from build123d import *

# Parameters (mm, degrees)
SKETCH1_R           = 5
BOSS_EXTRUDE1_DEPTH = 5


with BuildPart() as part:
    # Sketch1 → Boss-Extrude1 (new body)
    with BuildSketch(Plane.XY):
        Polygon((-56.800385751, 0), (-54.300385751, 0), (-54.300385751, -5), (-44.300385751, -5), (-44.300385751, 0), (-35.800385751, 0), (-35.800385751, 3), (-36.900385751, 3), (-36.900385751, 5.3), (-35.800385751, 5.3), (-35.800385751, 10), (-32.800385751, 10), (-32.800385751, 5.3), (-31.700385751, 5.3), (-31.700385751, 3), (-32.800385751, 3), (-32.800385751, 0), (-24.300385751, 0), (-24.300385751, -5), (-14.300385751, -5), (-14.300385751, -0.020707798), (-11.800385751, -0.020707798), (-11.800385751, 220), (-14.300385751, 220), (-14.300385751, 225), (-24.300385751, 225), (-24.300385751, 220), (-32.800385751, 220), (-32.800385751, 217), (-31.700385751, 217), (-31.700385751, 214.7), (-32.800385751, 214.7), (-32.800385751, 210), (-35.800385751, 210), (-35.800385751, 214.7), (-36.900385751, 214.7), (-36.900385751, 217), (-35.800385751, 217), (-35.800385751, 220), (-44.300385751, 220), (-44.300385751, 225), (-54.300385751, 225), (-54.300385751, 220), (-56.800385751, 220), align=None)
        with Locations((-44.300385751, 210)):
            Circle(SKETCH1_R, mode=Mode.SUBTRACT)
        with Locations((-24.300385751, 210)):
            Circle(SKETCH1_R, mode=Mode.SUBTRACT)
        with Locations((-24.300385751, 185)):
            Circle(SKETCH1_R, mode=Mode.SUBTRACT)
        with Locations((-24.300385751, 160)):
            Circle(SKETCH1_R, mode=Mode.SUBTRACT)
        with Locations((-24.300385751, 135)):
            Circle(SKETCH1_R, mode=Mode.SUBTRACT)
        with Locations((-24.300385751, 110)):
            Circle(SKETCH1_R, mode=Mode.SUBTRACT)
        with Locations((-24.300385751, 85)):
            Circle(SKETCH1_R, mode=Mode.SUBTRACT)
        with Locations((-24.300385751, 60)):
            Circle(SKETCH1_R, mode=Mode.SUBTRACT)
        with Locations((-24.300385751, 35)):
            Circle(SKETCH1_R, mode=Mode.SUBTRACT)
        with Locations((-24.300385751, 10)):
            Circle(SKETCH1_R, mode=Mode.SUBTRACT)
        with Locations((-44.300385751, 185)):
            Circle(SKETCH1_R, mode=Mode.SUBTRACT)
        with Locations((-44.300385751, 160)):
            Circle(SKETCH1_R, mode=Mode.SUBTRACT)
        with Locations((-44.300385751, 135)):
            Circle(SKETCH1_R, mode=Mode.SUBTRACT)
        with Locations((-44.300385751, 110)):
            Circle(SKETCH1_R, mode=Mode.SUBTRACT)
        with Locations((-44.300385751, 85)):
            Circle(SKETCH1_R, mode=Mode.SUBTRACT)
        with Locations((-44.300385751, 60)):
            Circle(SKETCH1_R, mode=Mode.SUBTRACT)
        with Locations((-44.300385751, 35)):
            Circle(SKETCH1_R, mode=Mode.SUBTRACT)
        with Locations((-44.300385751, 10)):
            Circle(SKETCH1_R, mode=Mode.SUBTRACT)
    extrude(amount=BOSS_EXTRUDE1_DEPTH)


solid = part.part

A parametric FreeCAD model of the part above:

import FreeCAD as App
import Part
import Sketcher
from FreeCAD import Vector
Q = App.Units.Quantity

doc = App.newDocument("Part")
body = doc.addObject("PartDesign::Body", "Body")

sketch1 = body.newObject("Sketcher::SketchObject", "Sketch")
sketch1.AttachmentSupport = (doc.getObject("XY_Plane"), [""])
sketch1.MapMode = "FlatFace"
sketch1.addGeometry([
    Part.LineSegment(Vector(-56.8, 0, 0), Vector(-54.3, 0, 0)),
    Part.LineSegment(Vector(-54.3, 0, 0), Vector(-54.3, -5, 0)),
    Part.LineSegment(Vector(-54.3, -5, 0), Vector(-44.3, -5, 0)),
    Part.LineSegment(Vector(-44.3, -5, 0), Vector(-44.3, 0, 0)),
    Part.LineSegment(Vector(-44.3, 0, 0), Vector(-35.8, 0, 0)),
    Part.LineSegment(Vector(-35.8, 0, 0), Vector(-35.8, 3, 0)),
    Part.LineSegment(Vector(-35.8, 3, 0), Vector(-36.9, 3, 0)),
    Part.LineSegment(Vector(-36.9, 3, 0), Vector(-36.9, 5.3, 0)),
    Part.LineSegment(Vector(-36.9, 5.3, 0), Vector(-35.8, 5.3, 0)),
    Part.LineSegment(Vector(-35.8, 5.3, 0), Vector(-35.8, 10, 0)),
    Part.LineSegment(Vector(-35.8, 10, 0), Vector(-32.8, 10, 0)),
    Part.LineSegment(Vector(-32.8, 10, 0), Vector(-32.8, 5.3, 0)),
    Part.LineSegment(Vector(-32.8, 5.3, 0), Vector(-31.7, 5.3, 0)),
    Part.LineSegment(Vector(-31.7, 5.3, 0), Vector(-31.7, 3, 0)),
    Part.LineSegment(Vector(-31.7, 3, 0), Vector(-32.8, 3, 0)),
    Part.LineSegment(Vector(-32.8, 3, 0), Vector(-32.8, 0, 0)),
    Part.LineSegment(Vector(-32.8, 0, 0), Vector(-24.3, 0, 0)),
    Part.LineSegment(Vector(-24.3, 0, 0), Vector(-24.3, -5, 0)),
    Part.LineSegment(Vector(-24.3, -5, 0), Vector(-14.3, -5, 0)),
    Part.LineSegment(Vector(-14.3, -5, 0), Vector(-14.3, 0, 0)),
    Part.LineSegment(Vector(-14.3, 0, 0), Vector(-11.8, 0, 0)),
    Part.LineSegment(Vector(-11.8, 0, 0), Vector(-11.8, 220, 0)),
    Part.LineSegment(Vector(-11.8, 220, 0), Vector(-14.3, 220, 0)),
    Part.LineSegment(Vector(-14.3, 220, 0), Vector(-14.3, 225, 0)),
    Part.LineSegment(Vector(-14.3, 225, 0), Vector(-24.3, 225, 0)),
    Part.LineSegment(Vector(-24.3, 225, 0), Vector(-24.3, 220, 0)),
    Part.LineSegment(Vector(-24.3, 220, 0), Vector(-32.8, 220, 0)),
    Part.LineSegment(Vector(-32.8, 220, 0), Vector(-32.8, 217, 0)),
    Part.LineSegment(Vector(-32.8, 217, 0), Vector(-31.7, 217, 0)),
    Part.LineSegment(Vector(-31.7, 217, 0), Vector(-31.7, 214.7, 0)),
    Part.LineSegment(Vector(-31.7, 214.7, 0), Vector(-32.8, 214.7, 0)),
    Part.LineSegment(Vector(-32.8, 214.7, 0), Vector(-32.8, 210, 0)),
    Part.LineSegment(Vector(-32.8, 210, 0), Vector(-35.8, 210, 0)),
    Part.LineSegment(Vector(-35.8, 210, 0), Vector(-35.8, 214.7, 0)),
    Part.LineSegment(Vector(-35.8, 214.7, 0), Vector(-36.9, 214.7, 0)),
    Part.LineSegment(Vector(-36.9, 214.7, 0), Vector(-36.9, 217, 0)),
    Part.LineSegment(Vector(-36.9, 217, 0), Vector(-35.8, 217, 0)),
    Part.LineSegment(Vector(-35.8, 217, 0), Vector(-35.8, 220, 0)),
    Part.LineSegment(Vector(-35.8, 220, 0), Vector(-44.3, 220, 0)),
    Part.LineSegment(Vector(-44.3, 220, 0), Vector(-44.3, 225, 0)),
    Part.LineSegment(Vector(-44.3, 225, 0), Vector(-54.3, 225, 0)),
    Part.LineSegment(Vector(-54.3, 225, 0), Vector(-54.3, 220, 0)),
    Part.LineSegment(Vector(-54.3, 220, 0), Vector(-56.8, 220, 0)),
    Part.LineSegment(Vector(-56.8, 220, 0), Vector(-56.8, 0, 0)),
    Part.Circle(Vector(-44.3, 10, 0), Vector(0, 0, 1), 5),
    Part.Circle(Vector(-44.3, 35, 0), Vector(0, 0, 1), 5),
    Part.Circle(Vector(-44.3, 60, 0), Vector(0, 0, 1), 5),
    Part.Circle(Vector(-44.3, 85, 0), Vector(0, 0, 1), 5),
    Part.Circle(Vector(-24.3, 10, 0), Vector(0, 0, 1), 5),
    Part.Circle(Vector(-24.3, 35, 0), Vector(0, 0, 1), 5),
    Part.Circle(Vector(-24.3, 60, 0), Vector(0, 0, 1), 5),
    Part.Circle(Vector(-24.3, 85, 0), Vector(0, 0, 1), 5),
    Part.Circle(Vector(-44.3, 110, 0), Vector(0, 0, 1), 5),
    Part.Circle(Vector(-44.3, 135, 0), Vector(0, 0, 1), 5),
    Part.Circle(Vector(-44.3, 160, 0), Vector(0, 0, 1), 5),
    Part.Circle(Vector(-44.3, 185, 0), Vector(0, 0, 1), 5),
    Part.Circle(Vector(-44.3, 210, 0), Vector(0, 0, 1), 5),
    Part.Circle(Vector(-24.3, 110, 0), Vector(0, 0, 1), 5),
    Part.Circle(Vector(-24.3, 135, 0), Vector(0, 0, 1), 5),
    Part.Circle(Vector(-24.3, 160, 0), Vector(0, 0, 1), 5),
    Part.Circle(Vector(-24.3, 185, 0), Vector(0, 0, 1), 5),
    Part.Circle(Vector(-24.3, 210, 0), Vector(0, 0, 1), 5),
], False)
sketch1.addConstraint([
    Sketcher.Constraint("Coincident", 0, 2, 1, 1),
    Sketcher.Constraint("Coincident", 1, 2, 2, 1),
    Sketcher.Constraint("Coincident", 2, 2, 3, 1),
    Sketcher.Constraint("Coincident", 3, 2, 4, 1),
    Sketcher.Constraint("Coincident", 4, 2, 5, 1),
    Sketcher.Constraint("Coincident", 5, 2, 6, 1),
    Sketcher.Constraint("Coincident", 6, 2, 7, 1),
    Sketcher.Constraint("Coincident", 7, 2, 8, 1),
    Sketcher.Constraint("Coincident", 8, 2, 9, 1),
    Sketcher.Constraint("Coincident", 9, 2, 10, 1),
    Sketcher.Constraint("Coincident", 10, 2, 11, 1),
    Sketcher.Constraint("Coincident", 11, 2, 12, 1),
    Sketcher.Constraint("Coincident", 12, 2, 13, 1),
    Sketcher.Constraint("Coincident", 13, 2, 14, 1),
    Sketcher.Constraint("Coincident", 14, 2, 15, 1),
    Sketcher.Constraint("Coincident", 15, 2, 16, 1),
    Sketcher.Constraint("Coincident", 16, 2, 17, 1),
    Sketcher.Constraint("Coincident", 17, 2, 18, 1),
    Sketcher.Constraint("Coincident", 18, 2, 19, 1),
    Sketcher.Constraint("Coincident", 19, 2, 20, 1),
    Sketcher.Constraint("Coincident", 20, 2, 21, 1),
    Sketcher.Constraint("Coincident", 21, 2, 22, 1),
    Sketcher.Constraint("Coincident", 22, 2, 23, 1),
    Sketcher.Constraint("Coincident", 23, 2, 24, 1),
    Sketcher.Constraint("Coincident", 24, 2, 25, 1),
    Sketcher.Constraint("Coincident", 25, 2, 26, 1),
    Sketcher.Constraint("Coincident", 26, 2, 27, 1),
    Sketcher.Constraint("Coincident", 27, 2, 28, 1),
    Sketcher.Constraint("Coincident", 28, 2, 29, 1),
    Sketcher.Constraint("Coincident", 29, 2, 30, 1),
    Sketcher.Constraint("Coincident", 30, 2, 31, 1),
    Sketcher.Constraint("Coincident", 31, 2, 32, 1),
    Sketcher.Constraint("Coincident", 32, 2, 33, 1),
    Sketcher.Constraint("Coincident", 33, 2, 34, 1),
    Sketcher.Constraint("Coincident", 34, 2, 35, 1),
    Sketcher.Constraint("Coincident", 35, 2, 36, 1),
    Sketcher.Constraint("Coincident", 36, 2, 37, 1),
    Sketcher.Constraint("Coincident", 37, 2, 38, 1),
    Sketcher.Constraint("Coincident", 38, 2, 39, 1),
    Sketcher.Constraint("Coincident", 39, 2, 40, 1),
    Sketcher.Constraint("Coincident", 40, 2, 41, 1),
    Sketcher.Constraint("Coincident", 41, 2, 42, 1),
    Sketcher.Constraint("Coincident", 42, 2, 43, 1),
    Sketcher.Constraint("Coincident", 43, 2, 0, 1),
    Sketcher.Constraint("Horizontal", 0),
    Sketcher.Constraint("Vertical", 1),
    Sketcher.Constraint("Horizontal", 2),
    Sketcher.Constraint("Vertical", 3),
    Sketcher.Constraint("Horizontal", 4),
    Sketcher.Constraint("Vertical", 5),
    Sketcher.Constraint("Horizontal", 6),
    Sketcher.Constraint("Vertical", 7),
    Sketcher.Constraint("Horizontal", 8),
    Sketcher.Constraint("Vertical", 9),
    Sketcher.Constraint("Horizontal", 10),
    Sketcher.Constraint("Vertical", 11),
    Sketcher.Constraint("Horizontal", 12),
    Sketcher.Constraint("Vertical", 13),
    Sketcher.Constraint("Horizontal", 14),
    Sketcher.Constraint("Vertical", 15),
    Sketcher.Constraint("Horizontal", 16),
    Sketcher.Constraint("Vertical", 17),
    Sketcher.Constraint("Horizontal", 18),
    Sketcher.Constraint("Vertical", 19),
    Sketcher.Constraint("Horizontal", 20),
    Sketcher.Constraint("Vertical", 21),
    Sketcher.Constraint("Horizontal", 22),
    Sketcher.Constraint("Vertical", 23),
    Sketcher.Constraint("Horizontal", 24),
    Sketcher.Constraint("Vertical", 25),
    Sketcher.Constraint("Horizontal", 26),
    Sketcher.Constraint("Vertical", 27),
    Sketcher.Constraint("Horizontal", 28),
    Sketcher.Constraint("Vertical", 29),
    Sketcher.Constraint("Horizontal", 30),
    Sketcher.Constraint("Vertical", 31),
    Sketcher.Constraint("Horizontal", 32),
    Sketcher.Constraint("Vertical", 33),
    Sketcher.Constraint("Horizontal", 34),
    Sketcher.Constraint("Vertical", 35),
    Sketcher.Constraint("Horizontal", 36),
    Sketcher.Constraint("Vertical", 37),
    Sketcher.Constraint("Horizontal", 38),
    Sketcher.Constraint("Vertical", 39),
    Sketcher.Constraint("Horizontal", 40),
    Sketcher.Constraint("Vertical", 41),
    Sketcher.Constraint("Horizontal", 42),
    Sketcher.Constraint("Vertical", 43),
    Sketcher.Constraint("Equal", 44, 45),
    Sketcher.Constraint("Equal", 45, 46),
    Sketcher.Constraint("Equal", 46, 47),
    Sketcher.Constraint("Equal", 47, 48),
    Sketcher.Constraint("Equal", 48, 49),
    Sketcher.Constraint("Equal", 49, 50),
    Sketcher.Constraint("Equal", 50, 51),
    Sketcher.Constraint("Equal", 51, 52),
    Sketcher.Constraint("Equal", 52, 53),
    Sketcher.Constraint("Equal", 53, 54),
    Sketcher.Constraint("Equal", 54, 55),
    Sketcher.Constraint("Equal", 55, 56),
    Sketcher.Constraint("Equal", 56, 57),
    Sketcher.Constraint("Equal", 57, 58),
    Sketcher.Constraint("Equal", 58, 59),
    Sketcher.Constraint("Equal", 59, 60),
    Sketcher.Constraint("Equal", 60, 61),
    Sketcher.Constraint("PointOnObject", 0, 2, -1),
    Sketcher.Constraint("PointOnObject", 3, 2, -1),
    Sketcher.Constraint("PointOnObject", 15, 2, -1),
    Sketcher.Constraint("Horizontal", 44, 3, 48, 3),
    Sketcher.Constraint("Horizontal", 45, 3, 49, 3),
    Sketcher.Constraint("Horizontal", 46, 3, 50, 3),
    Sketcher.Constraint("Horizontal", 47, 3, 51, 3),
    Sketcher.Constraint("Horizontal", 52, 3, 57, 3),
    Sketcher.Constraint("Horizontal", 53, 3, 58, 3),
    Sketcher.Constraint("Horizontal", 54, 3, 59, 3),
    Sketcher.Constraint("Horizontal", 55, 3, 60, 3),
    Sketcher.Constraint("Horizontal", 56, 3, 61, 3),
    Sketcher.Constraint("Horizontal", 48, 3, 9, 2),
    Sketcher.Constraint("Horizontal", 8, 2, 11, 2),
    Sketcher.Constraint("Horizontal", 6, 2, 13, 2),
    Sketcher.Constraint("Horizontal", 2, 2, 17, 2),
    Sketcher.Constraint("Horizontal", 22, 2, 25, 2),
    Sketcher.Constraint("Horizontal", 61, 3, 31, 2),
    Sketcher.Constraint("Horizontal", 30, 2, 33, 2),
    Sketcher.Constraint("Horizontal", 28, 2, 35, 2),
    Sketcher.Constraint("Horizontal", 26, 2, 37, 2),
    Sketcher.Constraint("Horizontal", 24, 2, 39, 2),
    Sketcher.Constraint("Horizontal", 38, 2, 41, 2),
    Sketcher.Constraint("Vertical", 44, 3, 45, 3),
    Sketcher.Constraint("Vertical", 45, 3, 46, 3),
    Sketcher.Constraint("Vertical", 46, 3, 47, 3),
    Sketcher.Constraint("Vertical", 48, 3, 49, 3),
    Sketcher.Constraint("Vertical", 49, 3, 50, 3),
    Sketcher.Constraint("Vertical", 50, 3, 51, 3),
    Sketcher.Constraint("Vertical", 47, 3, 52, 3),
    Sketcher.Constraint("Vertical", 52, 3, 53, 3),
    Sketcher.Constraint("Vertical", 53, 3, 54, 3),
    Sketcher.Constraint("Vertical", 54, 3, 55, 3),
    Sketcher.Constraint("Vertical", 55, 3, 56, 3),
    Sketcher.Constraint("Vertical", 51, 3, 57, 3),
    Sketcher.Constraint("Vertical", 57, 3, 58, 3),
    Sketcher.Constraint("Vertical", 58, 3, 59, 3),
    Sketcher.Constraint("Vertical", 59, 3, 60, 3),
    Sketcher.Constraint("Vertical", 60, 3, 61, 3),
    Sketcher.Constraint("Vertical", 56, 3, 2, 2),
    Sketcher.Constraint("Vertical", 5, 2, 8, 2),
    Sketcher.Constraint("Vertical", 11, 2, 14, 2),
    Sketcher.Constraint("Vertical", 61, 3, 16, 2),
    Sketcher.Constraint("Vertical", 19, 2, 22, 2),
    Sketcher.Constraint("Vertical", 17, 2, 24, 2),
    Sketcher.Constraint("Vertical", 15, 2, 26, 2),
    Sketcher.Constraint("Vertical", 13, 2, 28, 2),
    Sketcher.Constraint("Vertical", 27, 2, 30, 2),
    Sketcher.Constraint("Vertical", 9, 2, 32, 2),
    Sketcher.Constraint("Vertical", 7, 2, 34, 2),
    Sketcher.Constraint("Vertical", 33, 2, 36, 2),
    Sketcher.Constraint("Vertical", 3, 2, 38, 2),
    Sketcher.Constraint("Vertical", 1, 2, 40, 2),
    Sketcher.Constraint("Equal", 8, 12),
    Sketcher.Constraint("Equal", 4, 16),
    Sketcher.Constraint("Equal", 2, 18),
    Sketcher.Constraint("Equal", 0, 20),
    Sketcher.Constraint("Equal", 32, 5),
    Sketcher.Constraint("Equal", 17, 23),
    Sketcher.Constraint("Equal", 15, 27),
    Sketcher.Constraint("Equal", 13, 29),
    Sketcher.Constraint("Equal", 11, 31),
    Sketcher.Constraint("Diameter", 44, Q("10 mm")),
    Sketcher.Constraint("DistanceX", 2, 1, 2, 2, Q("10 mm")),
    Sketcher.Constraint("DistanceX", 10, 1, 10, 2, Q("3 mm")),
    Sketcher.Constraint("DistanceY", 1, 2, 1, 1, Q("5 mm")),
    Sketcher.Constraint("DistanceY", 43, 2, 43, 1, Q("220 mm")),
    Sketcher.Constraint("DistanceX", 0, 1, 0, 2, Q("2.5 mm")),
    Sketcher.Constraint("DistanceX", 4, 1, 4, 2, Q("8.5 mm")),
    Sketcher.Constraint("DistanceX", 6, 2, 6, 1, Q("1.1 mm")),
    Sketcher.Constraint("DistanceY", 7, 1, 7, 2, Q("2.3 mm")),
    Sketcher.Constraint("DistanceY", 9, 1, 9, 2, Q("4.7 mm")),
    Sketcher.Constraint("DistanceY", -1, 1, 45, 3, Q("35 mm")),
    Sketcher.Constraint("DistanceY", -1, 1, 46, 3, Q("60 mm")),
    Sketcher.Constraint("DistanceY", -1, 1, 47, 3, Q("85 mm")),
    Sketcher.Constraint("DistanceY", -1, 1, 52, 3, Q("110 mm")),
    Sketcher.Constraint("DistanceY", -1, 1, 53, 3, Q("135 mm")),
    Sketcher.Constraint("DistanceY", -1, 1, 54, 3, Q("160 mm")),
    Sketcher.Constraint("DistanceY", -1, 1, 55, 3, Q("185 mm")),
    Sketcher.Constraint("DistanceY", 19, 1, 19, 2, Q("4.979292 mm")),
    Sketcher.Constraint("DistanceX", 44, 3, -1, 1, Q("44.300386 mm")),
])
pad1 = body.newObject("PartDesign::Pad", "Pad")
pad1.Profile = sketch1
pad1.Length = 5

doc.recompute()
